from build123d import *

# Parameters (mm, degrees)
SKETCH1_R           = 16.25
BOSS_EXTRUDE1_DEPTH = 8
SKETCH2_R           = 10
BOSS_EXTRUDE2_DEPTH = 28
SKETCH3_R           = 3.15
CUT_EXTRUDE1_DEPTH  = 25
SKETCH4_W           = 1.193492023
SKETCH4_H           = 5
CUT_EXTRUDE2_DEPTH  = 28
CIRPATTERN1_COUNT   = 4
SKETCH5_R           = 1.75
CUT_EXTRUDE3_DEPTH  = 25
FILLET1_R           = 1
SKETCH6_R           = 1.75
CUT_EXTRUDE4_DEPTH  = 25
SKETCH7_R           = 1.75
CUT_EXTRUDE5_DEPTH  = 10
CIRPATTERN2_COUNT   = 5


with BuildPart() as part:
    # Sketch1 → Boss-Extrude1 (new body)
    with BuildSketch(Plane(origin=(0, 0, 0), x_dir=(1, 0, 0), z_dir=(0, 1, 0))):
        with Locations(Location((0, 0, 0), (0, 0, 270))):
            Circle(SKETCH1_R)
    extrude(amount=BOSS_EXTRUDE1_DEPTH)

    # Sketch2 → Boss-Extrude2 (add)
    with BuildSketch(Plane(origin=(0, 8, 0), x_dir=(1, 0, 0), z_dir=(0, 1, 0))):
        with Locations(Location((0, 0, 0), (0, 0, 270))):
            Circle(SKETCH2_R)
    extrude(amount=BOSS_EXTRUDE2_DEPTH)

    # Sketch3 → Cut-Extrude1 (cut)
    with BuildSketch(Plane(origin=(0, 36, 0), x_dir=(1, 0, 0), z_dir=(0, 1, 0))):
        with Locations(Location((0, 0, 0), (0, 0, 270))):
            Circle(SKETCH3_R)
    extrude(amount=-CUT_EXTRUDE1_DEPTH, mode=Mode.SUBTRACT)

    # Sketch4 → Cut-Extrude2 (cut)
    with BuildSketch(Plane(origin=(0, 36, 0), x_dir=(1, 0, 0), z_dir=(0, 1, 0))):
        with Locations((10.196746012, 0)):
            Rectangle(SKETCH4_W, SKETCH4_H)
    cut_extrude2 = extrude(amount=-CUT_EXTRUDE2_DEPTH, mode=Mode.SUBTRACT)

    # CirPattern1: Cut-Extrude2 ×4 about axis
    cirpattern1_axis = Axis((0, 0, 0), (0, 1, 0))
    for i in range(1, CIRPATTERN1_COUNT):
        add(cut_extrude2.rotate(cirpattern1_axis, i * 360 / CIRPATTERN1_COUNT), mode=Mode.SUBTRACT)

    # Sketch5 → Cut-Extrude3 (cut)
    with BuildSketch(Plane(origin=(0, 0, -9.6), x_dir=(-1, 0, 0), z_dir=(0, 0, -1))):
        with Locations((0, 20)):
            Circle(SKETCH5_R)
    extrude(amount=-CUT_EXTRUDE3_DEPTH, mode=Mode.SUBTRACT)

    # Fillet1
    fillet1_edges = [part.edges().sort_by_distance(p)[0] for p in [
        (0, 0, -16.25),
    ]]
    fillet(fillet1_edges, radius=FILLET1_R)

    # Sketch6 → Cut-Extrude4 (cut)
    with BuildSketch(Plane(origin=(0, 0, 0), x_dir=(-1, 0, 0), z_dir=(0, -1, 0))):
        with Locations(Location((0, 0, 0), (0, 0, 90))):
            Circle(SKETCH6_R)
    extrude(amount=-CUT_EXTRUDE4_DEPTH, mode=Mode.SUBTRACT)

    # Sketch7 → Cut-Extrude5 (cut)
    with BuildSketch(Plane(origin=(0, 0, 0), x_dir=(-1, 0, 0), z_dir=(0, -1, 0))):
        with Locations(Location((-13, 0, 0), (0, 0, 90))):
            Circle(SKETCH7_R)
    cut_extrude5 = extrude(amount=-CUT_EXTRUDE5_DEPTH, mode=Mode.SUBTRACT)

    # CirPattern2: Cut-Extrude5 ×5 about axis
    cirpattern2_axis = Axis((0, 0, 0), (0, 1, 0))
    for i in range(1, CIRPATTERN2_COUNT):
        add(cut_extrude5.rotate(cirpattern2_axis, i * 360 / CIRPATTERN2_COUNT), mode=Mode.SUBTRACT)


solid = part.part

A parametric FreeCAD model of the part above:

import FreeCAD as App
import Part
import Sketcher

V = App.Vector
Q = App.Units.Quantity


def edges_at(feature, points):
    """Names of the edges that pass closest to the given points."""
    edges = feature.Shape.Edges
    near = lambda p: min(range(len(edges)), key=lambda i: edges[i].distToShape(Part.Vertex(*p))[0])
    return sorted({f"Edge{near(p) + 1}" for p in points})

doc = App.newDocument("Part")
body = doc.addObject("PartDesign::Body", "Body")

# Sketch on XZ plane
sketch1 = body.newObject("Sketcher::SketchObject", "Sketch")
sketch1.AttachmentSupport = (doc.getObject("XZ_Plane"), [""])
sketch1.MapMode = "FlatFace"
sketch1.addGeometry(Part.Circle(V(0, 0, 0), V(0, 0, 1), 16), False)
sketch1.addConstraint([
    Sketcher.Constraint("Coincident", 0, 3, -1, 1),
    Sketcher.Constraint("Diameter", 0, Q("32.5 mm")),
])
pad1 = body.newObject("PartDesign::Pad", "Pad")
pad1.Profile = sketch1
pad1.Length = 8
pad1.Reversed = True

# Sketch on XZ plane
sketch2 = body.newObject("Sketcher::SketchObject", "Sketch001")
sketch2.AttachmentSupport = (doc.getObject("XZ_Plane"), [""])
sketch2.MapMode = "FlatFace"
sketch2.AttachmentOffset = App.Placement(V(0, 0, -8), App.Rotation())
sketch2.addGeometry(Part.Circle(V(0, 0, 0), V(0, 0, 1), 10), False)
sketch2.addConstraint([
    Sketcher.Constraint("Coincident", 0, 3, -1, 1),
    Sketcher.Constraint("Diameter", 0, Q("20 mm")),
])
pad2 = body.newObject("PartDesign::Pad", "Pad001")
pad2.Profile = sketch2
pad2.Length = 28
pad2.Reversed = True

# Sketch on XZ plane
sketch3 = body.newObject("Sketcher::SketchObject", "Sketch002")
sketch3.AttachmentSupport = (doc.getObject("XZ_Plane"), [""])
sketch3.MapMode = "FlatFace"
sketch3.AttachmentOffset = App.Placement(V(0, 0, -36), App.Rotation())
sketch3.addGeometry(Part.Circle(V(0, 0, 0), V(0, 0, 1), 3.1), False)
sketch3.addConstraint([
    Sketcher.Constraint("Coincident", 0, 3, -1, 1),
    Sketcher.Constraint("Diameter", 0, Q("6.3 mm")),
])
pocket1 = body.newObject("PartDesign::Pocket", "Pocket")
pocket1.Profile = sketch3
pocket1.Length = 25
pocket1.Reversed = True

# Sketch on XZ plane
sketch4 = body.newObject("Sketcher::SketchObject", "Sketch003")
sketch4.AttachmentSupport = (doc.getObject("XZ_Plane"), [""])
sketch4.MapMode = "FlatFace"
sketch4.AttachmentOffset = App.Placement(V(0, 0, -36), App.Rotation())
sketch4.addGeometry([
    Part.LineSegment(V(9.6, -2.5, 0), V(9.6, 2.5, 0)),
    Part.LineSegment(V(9.6, 2.5, 0), V(10.8, 2.5, 0)),
    Part.LineSegment(V(10.8, 2.5, 0), V(10.8, -2.5, 0)),
    Part.LineSegment(V(10.8, -2.5, 0), V(9.6, -2.5, 0)),
], False)
sketch4.addConstraint([
    Sketcher.Constraint("Coincident", 0, 2, 1, 1),
    Sketcher.Constraint("Coincident", 1, 2, 2, 1),
    Sketcher.Constraint("Coincident", 2, 2, 3, 1),
    Sketcher.Constraint("Coincident", 3, 2, 0, 1),
    Sketcher.Constraint("Vertical", 0),
    Sketcher.Constraint("Horizontal", 1),
    Sketcher.Constraint("Vertical", 2),
    Sketcher.Constraint("Horizontal", 3),
    Sketcher.Constraint("DistanceY", 0, 1, 0, 2, Q("5 mm")),
    Sketcher.Constraint("DistanceX", -1, 1, 0, 2, Q("9.6 mm")),
    Sketcher.Constraint("DistanceY", -1, 1, 0, 2, Q("2.5 mm")),
    Sketcher.Constraint("DistanceX", 1, 1, 1, 2, Q("1.193492 mm")),
])
pocket2 = body.newObject("PartDesign::Pocket", "Pocket001")
pocket2.Profile = sketch4
pocket2.Length = 28
pocket2.Reversed = True
doc.recompute()

polarpattern = body.newObject("PartDesign::PolarPattern", "PolarPattern")
polarpattern.Originals = [pocket2]
polarpattern.Axis = (doc.getObject("Y_Axis"), [""])
polarpattern.Angle = 360
polarpattern.Occurrences = 4
body.Tip = polarpattern

# Sketch on XY plane
sketch5 = body.newObject("Sketcher::SketchObject", "Sketch004")
sketch5.AttachmentSupport = (doc.getObject("XY_Plane"), [""])
sketch5.MapMode = "FlatFace"
sketch5.AttachmentOffset = App.Placement(V(0, 0, -9.6), App.Rotation())
sketch5.addGeometry(Part.Circle(V(0, 20, 0), V(0, 0, 1), 1.8), False)
sketch5.addConstraint([
    Sketcher.Constraint("PointOnObject", 0, 3, -2),
    Sketcher.Constraint("Diameter", 0, Q("3.5 mm")),
    Sketcher.Constraint("DistanceY", -1, 1, 0, 3, Q("20 mm")),
])
pocket3 = body.newObject("PartDesign::Pocket", "Pocket002")
pocket3.Profile = sketch5
pocket3.Length = 25
pocket3.Reversed = True
doc.recompute()

fillet = body.newObject("PartDesign::Fillet", "Fillet")
fillet.Base = (pocket3, edges_at(pocket3, [(0, 0, -16.25)]))
fillet.Radius = 1

# Sketch on XZ plane
sketch6 = body.newObject("Sketcher::SketchObject", "Sketch005")
sketch6.AttachmentSupport = (doc.getObject("XZ_Plane"), [""])
sketch6.MapMode = "FlatFace"
sketch6.addGeometry(Part.Circle(V(0, 0, 0), V(0, 0, 1), 1.8), False)
sketch6.addConstraint([
    Sketcher.Constraint("Coincident", 0, 3, -1, 1),
    Sketcher.Constraint("Diameter", 0, Q("3.5 mm")),
])
pocket4 = body.newObject("PartDesign::Pocket", "Pocket003")
pocket4.Profile = sketch6
pocket4.Length = 25

# Sketch on XZ plane
sketch7 = body.newObject("Sketcher::SketchObject", "Sketch006")
sketch7.AttachmentSupport = (doc.getObject("XZ_Plane"), [""])
sketch7.MapMode = "FlatFace"
sketch7.addGeometry(Part.Circle(V(13, 0, 0), V(0, 0, 1), 1.8), False)
sketch7.addConstraint([
    Sketcher.Constraint("PointOnObject", 0, 3, -1),
    Sketcher.Constraint("Diameter", 0, Q("3.5 mm")),
    Sketcher.Constraint("DistanceX", -1, 1, 0, 3, Q("13 mm")),
])
pocket5 = body.newObject("PartDesign::Pocket", "Pocket004")
pocket5.Profile = sketch7
pocket5.Length = 10
doc.recompute()

polarpattern2 = body.newObject("PartDesign::PolarPattern", "PolarPattern001")
polarpattern2.Originals = [pocket5]
polarpattern2.Axis = (doc.getObject("Y_Axis"), [""])
polarpattern2.Angle = 360
polarpattern2.Occurrences = 5
body.Tip = polarpattern2

doc.recompute()
